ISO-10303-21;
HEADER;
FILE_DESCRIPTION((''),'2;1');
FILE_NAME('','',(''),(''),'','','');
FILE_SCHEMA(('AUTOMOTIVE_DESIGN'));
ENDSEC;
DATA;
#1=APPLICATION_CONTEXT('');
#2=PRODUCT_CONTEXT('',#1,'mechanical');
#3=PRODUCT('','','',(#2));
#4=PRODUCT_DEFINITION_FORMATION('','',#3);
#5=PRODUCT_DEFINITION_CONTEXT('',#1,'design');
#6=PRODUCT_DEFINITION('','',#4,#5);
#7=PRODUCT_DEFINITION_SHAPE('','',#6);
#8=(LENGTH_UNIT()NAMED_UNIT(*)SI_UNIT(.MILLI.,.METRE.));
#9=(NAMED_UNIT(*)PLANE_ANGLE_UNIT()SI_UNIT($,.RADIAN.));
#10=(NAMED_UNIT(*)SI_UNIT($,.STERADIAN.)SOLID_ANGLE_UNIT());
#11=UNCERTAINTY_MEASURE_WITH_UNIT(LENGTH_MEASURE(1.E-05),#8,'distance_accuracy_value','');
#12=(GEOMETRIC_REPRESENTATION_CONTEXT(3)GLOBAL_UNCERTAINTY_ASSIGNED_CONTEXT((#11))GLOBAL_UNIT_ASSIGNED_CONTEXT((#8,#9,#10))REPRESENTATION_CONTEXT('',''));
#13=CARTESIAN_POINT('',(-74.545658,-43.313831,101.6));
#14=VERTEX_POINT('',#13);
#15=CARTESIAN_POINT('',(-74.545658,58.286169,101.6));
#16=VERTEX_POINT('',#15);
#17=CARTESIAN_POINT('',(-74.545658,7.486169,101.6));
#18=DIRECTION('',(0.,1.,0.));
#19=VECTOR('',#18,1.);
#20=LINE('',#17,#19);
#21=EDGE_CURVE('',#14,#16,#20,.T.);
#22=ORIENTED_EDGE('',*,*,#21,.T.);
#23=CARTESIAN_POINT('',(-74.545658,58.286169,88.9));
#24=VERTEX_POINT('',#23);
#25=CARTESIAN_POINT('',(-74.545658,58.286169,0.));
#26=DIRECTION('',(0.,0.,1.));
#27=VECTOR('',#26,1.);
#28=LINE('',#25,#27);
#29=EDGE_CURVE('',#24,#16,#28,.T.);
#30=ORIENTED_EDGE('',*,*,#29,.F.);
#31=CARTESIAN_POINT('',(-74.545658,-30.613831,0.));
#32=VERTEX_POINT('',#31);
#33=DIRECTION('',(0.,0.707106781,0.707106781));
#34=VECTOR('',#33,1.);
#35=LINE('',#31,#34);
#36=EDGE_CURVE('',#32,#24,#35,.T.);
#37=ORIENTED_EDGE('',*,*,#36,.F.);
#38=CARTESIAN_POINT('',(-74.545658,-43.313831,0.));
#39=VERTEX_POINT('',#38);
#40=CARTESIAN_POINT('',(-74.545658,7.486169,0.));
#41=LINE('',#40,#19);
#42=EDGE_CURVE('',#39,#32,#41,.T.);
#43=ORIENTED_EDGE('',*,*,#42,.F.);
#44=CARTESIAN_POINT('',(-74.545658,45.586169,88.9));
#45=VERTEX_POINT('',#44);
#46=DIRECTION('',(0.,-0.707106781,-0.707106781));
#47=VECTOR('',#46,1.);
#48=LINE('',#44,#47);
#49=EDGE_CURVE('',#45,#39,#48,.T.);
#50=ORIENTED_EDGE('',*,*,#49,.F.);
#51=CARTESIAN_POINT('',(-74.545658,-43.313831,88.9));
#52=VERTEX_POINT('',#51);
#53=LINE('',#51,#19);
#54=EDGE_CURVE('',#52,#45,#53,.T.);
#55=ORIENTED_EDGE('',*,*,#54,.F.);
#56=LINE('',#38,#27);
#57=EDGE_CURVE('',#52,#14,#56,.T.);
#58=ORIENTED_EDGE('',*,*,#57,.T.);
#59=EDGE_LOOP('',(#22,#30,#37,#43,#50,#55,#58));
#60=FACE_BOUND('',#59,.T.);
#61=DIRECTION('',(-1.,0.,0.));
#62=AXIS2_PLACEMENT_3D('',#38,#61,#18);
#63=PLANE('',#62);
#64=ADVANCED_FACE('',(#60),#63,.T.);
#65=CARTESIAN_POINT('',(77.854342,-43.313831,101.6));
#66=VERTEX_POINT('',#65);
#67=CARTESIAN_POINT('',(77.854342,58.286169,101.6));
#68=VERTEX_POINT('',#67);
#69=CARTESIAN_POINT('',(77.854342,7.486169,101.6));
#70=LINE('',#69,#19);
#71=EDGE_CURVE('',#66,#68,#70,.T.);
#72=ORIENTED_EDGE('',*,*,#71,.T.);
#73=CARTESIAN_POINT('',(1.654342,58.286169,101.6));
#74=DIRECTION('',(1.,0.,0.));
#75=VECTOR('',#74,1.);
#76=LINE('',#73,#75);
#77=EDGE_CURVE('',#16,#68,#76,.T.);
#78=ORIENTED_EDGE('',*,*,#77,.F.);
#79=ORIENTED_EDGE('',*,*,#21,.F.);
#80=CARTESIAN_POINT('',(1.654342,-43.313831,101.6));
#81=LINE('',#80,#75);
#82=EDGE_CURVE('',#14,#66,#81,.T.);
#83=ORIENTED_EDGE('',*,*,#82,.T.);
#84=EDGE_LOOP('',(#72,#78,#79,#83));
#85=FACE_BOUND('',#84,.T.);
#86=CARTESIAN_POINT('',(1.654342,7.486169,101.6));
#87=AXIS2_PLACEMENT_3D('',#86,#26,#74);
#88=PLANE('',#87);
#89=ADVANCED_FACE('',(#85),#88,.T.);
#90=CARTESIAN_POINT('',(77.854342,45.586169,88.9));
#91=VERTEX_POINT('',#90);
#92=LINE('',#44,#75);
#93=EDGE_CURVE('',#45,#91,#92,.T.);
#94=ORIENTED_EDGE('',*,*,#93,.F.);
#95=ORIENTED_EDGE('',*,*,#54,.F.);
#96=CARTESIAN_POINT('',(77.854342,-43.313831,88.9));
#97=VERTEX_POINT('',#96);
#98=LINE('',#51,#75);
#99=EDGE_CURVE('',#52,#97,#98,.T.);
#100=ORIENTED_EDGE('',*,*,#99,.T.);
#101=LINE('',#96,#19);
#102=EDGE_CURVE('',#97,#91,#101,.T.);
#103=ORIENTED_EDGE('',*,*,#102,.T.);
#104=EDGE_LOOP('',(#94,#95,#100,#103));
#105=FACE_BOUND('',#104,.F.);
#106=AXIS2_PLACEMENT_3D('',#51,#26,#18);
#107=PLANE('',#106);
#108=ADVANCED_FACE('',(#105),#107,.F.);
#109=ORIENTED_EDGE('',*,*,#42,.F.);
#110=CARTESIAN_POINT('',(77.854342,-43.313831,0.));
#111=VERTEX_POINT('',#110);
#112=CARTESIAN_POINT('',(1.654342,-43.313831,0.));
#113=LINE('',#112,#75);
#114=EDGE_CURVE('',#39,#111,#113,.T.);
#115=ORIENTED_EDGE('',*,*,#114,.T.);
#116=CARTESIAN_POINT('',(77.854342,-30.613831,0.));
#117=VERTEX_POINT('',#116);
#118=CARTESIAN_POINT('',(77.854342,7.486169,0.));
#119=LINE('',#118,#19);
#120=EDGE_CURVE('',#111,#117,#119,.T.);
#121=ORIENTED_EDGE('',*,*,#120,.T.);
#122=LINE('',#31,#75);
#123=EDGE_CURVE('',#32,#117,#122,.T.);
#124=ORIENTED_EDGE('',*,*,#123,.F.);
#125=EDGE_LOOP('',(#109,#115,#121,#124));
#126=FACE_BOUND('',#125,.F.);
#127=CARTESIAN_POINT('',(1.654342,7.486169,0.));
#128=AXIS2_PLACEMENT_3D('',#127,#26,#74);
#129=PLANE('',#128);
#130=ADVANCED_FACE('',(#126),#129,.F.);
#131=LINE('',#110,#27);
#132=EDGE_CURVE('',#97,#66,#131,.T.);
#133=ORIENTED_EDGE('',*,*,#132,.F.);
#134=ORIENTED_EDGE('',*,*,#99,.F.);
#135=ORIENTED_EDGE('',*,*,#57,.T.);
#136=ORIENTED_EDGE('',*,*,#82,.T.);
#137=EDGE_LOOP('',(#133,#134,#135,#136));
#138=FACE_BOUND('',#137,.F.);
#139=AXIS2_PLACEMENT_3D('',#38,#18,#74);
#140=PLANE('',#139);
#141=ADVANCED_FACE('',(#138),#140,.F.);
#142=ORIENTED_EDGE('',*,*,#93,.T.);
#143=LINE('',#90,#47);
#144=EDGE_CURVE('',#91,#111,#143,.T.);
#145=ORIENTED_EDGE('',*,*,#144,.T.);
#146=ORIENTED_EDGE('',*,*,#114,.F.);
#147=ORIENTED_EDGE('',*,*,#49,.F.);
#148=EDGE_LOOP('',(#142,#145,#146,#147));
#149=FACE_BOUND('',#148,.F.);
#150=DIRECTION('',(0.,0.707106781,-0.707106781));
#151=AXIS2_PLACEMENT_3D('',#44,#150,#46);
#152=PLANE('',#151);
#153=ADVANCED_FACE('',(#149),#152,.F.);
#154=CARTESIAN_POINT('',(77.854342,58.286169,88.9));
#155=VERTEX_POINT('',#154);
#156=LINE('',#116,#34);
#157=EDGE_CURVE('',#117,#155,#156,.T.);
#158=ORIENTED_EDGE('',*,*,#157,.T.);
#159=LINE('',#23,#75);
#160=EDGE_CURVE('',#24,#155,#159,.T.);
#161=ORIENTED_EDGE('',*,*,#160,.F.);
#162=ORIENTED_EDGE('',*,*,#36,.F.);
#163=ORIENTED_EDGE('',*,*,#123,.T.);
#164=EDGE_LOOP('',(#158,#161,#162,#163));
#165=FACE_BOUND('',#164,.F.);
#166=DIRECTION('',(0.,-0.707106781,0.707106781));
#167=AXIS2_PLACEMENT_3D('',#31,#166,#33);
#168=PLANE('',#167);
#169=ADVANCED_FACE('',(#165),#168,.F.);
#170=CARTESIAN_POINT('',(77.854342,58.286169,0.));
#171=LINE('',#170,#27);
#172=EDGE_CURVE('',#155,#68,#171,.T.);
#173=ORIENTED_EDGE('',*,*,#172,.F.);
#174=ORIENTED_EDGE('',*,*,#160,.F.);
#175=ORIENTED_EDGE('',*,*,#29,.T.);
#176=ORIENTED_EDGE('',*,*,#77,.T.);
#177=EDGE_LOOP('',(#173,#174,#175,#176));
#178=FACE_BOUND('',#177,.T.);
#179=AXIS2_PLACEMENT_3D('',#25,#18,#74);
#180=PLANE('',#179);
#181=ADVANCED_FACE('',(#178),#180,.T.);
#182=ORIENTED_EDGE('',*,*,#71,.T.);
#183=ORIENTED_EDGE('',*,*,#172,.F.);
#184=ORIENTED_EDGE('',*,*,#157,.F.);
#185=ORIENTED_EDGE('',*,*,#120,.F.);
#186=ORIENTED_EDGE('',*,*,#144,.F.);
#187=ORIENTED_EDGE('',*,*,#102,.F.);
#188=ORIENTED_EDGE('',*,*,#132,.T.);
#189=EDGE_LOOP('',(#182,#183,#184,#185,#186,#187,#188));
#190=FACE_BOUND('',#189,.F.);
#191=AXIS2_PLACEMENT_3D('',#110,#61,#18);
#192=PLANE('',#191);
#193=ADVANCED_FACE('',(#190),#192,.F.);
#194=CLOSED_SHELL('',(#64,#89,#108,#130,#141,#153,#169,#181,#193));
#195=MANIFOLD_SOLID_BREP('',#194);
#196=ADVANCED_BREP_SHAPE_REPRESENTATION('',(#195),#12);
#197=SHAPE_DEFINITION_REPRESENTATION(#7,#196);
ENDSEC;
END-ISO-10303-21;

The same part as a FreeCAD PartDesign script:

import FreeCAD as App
import Part
import Sketcher
from FreeCAD import Vector
Q = App.Units.Quantity


def add_polygon(sketch, points):
    """Adds a closed chain of lines whose ends are joined by coincident constraints."""
    first, n = sketch.GeometryCount, len(points)
    for a, b in zip(points, points[1:] + points[:1]):
        sketch.addGeometry(Part.LineSegment(App.Vector(*a, 0), App.Vector(*b, 0)), False)
    for i in range(n):
        sketch.addConstraint(Sketcher.Constraint("Coincident", first + i, 2, first + (i + 1) % n, 1))

doc = App.newDocument("Part")
params = doc.addObject("Spreadsheet::Sheet", "Params")
for row, (alias, value) in enumerate([
    ("sketch1_width", "6 in"),
    ("sketch1_height", "4 in"),
    ("pad1_length", "4 in"),
    ("sketch2_width", "3.5 in"),
    ("pocket1_length", "6 in"),
], start=1):
    params.set(f"A{row}", alias)
    params.set(f"B{row}", "=" + value)
    params.setAlias(f"B{row}", alias)

body = doc.addObject("PartDesign::Body", "Body")

sketch1 = body.newObject("Sketcher::SketchObject", "Sketch")
sketch1.AttachmentSupport = (doc.getObject("XY_Plane"), [""])
sketch1.MapMode = "FlatFace"
add_polygon(sketch1, [(-74.545658, 58.286169), (-74.545658, -43.313831), (77.854342, -43.313831), (77.854342, 58.286169)])
sketch1.addConstraint([
    Sketcher.Constraint("Vertical", 0),
    Sketcher.Constraint("Horizontal", 1),
    Sketcher.Constraint("Vertical", 2),
    Sketcher.Constraint("Horizontal", 3),
    Sketcher.Constraint("DistanceX", 1, 1, 1, 2, Q("6 in")),
    Sketcher.Constraint("DistanceY", 0, 2, 0, 1, Q("4 in")),
    Sketcher.Constraint("DistanceX", 0, 2, -1, 1, Q("74.545658 mm")),
    Sketcher.Constraint("DistanceY", 0, 2, -1, 1, Q("43.313831 mm")),
])
sketch1.setExpression("Constraints[8]", "Params.sketch1_width")
sketch1.setExpression("Constraints[9]", "Params.sketch1_height")
pad1 = body.newObject("PartDesign::Pad", "Pad")
pad1.Profile = sketch1
pad1.setExpression("Length", "Params.pad1_length")

sketch2 = body.newObject("Sketcher::SketchObject", "Sketch001")
sketch2.AttachmentSupport = (doc.getObject("YZ_Plane"), [""])
sketch2.MapMode = "FlatFace"
sketch2.AttachmentOffset = App.Placement(Vector(0, 0, -74.545658), App.Rotation())
add_polygon(sketch2, [(-43.313831, 88.9), (45.586169, 88.9), (-43.313831, 0)])
add_polygon(sketch2, [(-30.613831, 0), (58.286169, 88.9), (58.286169, 0)])
sketch2.addConstraint([
    Sketcher.Constraint("Horizontal", 0),
    Sketcher.Constraint("Vertical", 2),
    Sketcher.Constraint("Vertical", 4),
    Sketcher.Constraint("Horizontal", 5),
    Sketcher.Constraint("PointOnObject", 1, 2, -1),
    Sketcher.Constraint("PointOnObject", 4, 2, -1),
    Sketcher.Constraint("Parallel", 1, 3),
    Sketcher.Constraint("Horizontal", 2, 2, 3, 2),
    Sketcher.Constraint("Equal", 5, 2),
    Sketcher.Constraint("DistanceX", 0, 1, 0, 2, Q("3.5 in")),
    Sketcher.Constraint("DistanceX", 2, 2, 3, 2, Q("4 in")),
    Sketcher.Constraint("DistanceX", -1, 1, 0, 2, Q("45.586169 mm")),
])
sketch2.setExpression("Constraints[15]", "Params.sketch2_width")
pocket1 = body.newObject("PartDesign::Pocket", "Pocket")
pocket1.Profile = sketch2
pocket1.setExpression("Length", "Params.pocket1_length")
pocket1.Reversed = True

doc.recompute()
